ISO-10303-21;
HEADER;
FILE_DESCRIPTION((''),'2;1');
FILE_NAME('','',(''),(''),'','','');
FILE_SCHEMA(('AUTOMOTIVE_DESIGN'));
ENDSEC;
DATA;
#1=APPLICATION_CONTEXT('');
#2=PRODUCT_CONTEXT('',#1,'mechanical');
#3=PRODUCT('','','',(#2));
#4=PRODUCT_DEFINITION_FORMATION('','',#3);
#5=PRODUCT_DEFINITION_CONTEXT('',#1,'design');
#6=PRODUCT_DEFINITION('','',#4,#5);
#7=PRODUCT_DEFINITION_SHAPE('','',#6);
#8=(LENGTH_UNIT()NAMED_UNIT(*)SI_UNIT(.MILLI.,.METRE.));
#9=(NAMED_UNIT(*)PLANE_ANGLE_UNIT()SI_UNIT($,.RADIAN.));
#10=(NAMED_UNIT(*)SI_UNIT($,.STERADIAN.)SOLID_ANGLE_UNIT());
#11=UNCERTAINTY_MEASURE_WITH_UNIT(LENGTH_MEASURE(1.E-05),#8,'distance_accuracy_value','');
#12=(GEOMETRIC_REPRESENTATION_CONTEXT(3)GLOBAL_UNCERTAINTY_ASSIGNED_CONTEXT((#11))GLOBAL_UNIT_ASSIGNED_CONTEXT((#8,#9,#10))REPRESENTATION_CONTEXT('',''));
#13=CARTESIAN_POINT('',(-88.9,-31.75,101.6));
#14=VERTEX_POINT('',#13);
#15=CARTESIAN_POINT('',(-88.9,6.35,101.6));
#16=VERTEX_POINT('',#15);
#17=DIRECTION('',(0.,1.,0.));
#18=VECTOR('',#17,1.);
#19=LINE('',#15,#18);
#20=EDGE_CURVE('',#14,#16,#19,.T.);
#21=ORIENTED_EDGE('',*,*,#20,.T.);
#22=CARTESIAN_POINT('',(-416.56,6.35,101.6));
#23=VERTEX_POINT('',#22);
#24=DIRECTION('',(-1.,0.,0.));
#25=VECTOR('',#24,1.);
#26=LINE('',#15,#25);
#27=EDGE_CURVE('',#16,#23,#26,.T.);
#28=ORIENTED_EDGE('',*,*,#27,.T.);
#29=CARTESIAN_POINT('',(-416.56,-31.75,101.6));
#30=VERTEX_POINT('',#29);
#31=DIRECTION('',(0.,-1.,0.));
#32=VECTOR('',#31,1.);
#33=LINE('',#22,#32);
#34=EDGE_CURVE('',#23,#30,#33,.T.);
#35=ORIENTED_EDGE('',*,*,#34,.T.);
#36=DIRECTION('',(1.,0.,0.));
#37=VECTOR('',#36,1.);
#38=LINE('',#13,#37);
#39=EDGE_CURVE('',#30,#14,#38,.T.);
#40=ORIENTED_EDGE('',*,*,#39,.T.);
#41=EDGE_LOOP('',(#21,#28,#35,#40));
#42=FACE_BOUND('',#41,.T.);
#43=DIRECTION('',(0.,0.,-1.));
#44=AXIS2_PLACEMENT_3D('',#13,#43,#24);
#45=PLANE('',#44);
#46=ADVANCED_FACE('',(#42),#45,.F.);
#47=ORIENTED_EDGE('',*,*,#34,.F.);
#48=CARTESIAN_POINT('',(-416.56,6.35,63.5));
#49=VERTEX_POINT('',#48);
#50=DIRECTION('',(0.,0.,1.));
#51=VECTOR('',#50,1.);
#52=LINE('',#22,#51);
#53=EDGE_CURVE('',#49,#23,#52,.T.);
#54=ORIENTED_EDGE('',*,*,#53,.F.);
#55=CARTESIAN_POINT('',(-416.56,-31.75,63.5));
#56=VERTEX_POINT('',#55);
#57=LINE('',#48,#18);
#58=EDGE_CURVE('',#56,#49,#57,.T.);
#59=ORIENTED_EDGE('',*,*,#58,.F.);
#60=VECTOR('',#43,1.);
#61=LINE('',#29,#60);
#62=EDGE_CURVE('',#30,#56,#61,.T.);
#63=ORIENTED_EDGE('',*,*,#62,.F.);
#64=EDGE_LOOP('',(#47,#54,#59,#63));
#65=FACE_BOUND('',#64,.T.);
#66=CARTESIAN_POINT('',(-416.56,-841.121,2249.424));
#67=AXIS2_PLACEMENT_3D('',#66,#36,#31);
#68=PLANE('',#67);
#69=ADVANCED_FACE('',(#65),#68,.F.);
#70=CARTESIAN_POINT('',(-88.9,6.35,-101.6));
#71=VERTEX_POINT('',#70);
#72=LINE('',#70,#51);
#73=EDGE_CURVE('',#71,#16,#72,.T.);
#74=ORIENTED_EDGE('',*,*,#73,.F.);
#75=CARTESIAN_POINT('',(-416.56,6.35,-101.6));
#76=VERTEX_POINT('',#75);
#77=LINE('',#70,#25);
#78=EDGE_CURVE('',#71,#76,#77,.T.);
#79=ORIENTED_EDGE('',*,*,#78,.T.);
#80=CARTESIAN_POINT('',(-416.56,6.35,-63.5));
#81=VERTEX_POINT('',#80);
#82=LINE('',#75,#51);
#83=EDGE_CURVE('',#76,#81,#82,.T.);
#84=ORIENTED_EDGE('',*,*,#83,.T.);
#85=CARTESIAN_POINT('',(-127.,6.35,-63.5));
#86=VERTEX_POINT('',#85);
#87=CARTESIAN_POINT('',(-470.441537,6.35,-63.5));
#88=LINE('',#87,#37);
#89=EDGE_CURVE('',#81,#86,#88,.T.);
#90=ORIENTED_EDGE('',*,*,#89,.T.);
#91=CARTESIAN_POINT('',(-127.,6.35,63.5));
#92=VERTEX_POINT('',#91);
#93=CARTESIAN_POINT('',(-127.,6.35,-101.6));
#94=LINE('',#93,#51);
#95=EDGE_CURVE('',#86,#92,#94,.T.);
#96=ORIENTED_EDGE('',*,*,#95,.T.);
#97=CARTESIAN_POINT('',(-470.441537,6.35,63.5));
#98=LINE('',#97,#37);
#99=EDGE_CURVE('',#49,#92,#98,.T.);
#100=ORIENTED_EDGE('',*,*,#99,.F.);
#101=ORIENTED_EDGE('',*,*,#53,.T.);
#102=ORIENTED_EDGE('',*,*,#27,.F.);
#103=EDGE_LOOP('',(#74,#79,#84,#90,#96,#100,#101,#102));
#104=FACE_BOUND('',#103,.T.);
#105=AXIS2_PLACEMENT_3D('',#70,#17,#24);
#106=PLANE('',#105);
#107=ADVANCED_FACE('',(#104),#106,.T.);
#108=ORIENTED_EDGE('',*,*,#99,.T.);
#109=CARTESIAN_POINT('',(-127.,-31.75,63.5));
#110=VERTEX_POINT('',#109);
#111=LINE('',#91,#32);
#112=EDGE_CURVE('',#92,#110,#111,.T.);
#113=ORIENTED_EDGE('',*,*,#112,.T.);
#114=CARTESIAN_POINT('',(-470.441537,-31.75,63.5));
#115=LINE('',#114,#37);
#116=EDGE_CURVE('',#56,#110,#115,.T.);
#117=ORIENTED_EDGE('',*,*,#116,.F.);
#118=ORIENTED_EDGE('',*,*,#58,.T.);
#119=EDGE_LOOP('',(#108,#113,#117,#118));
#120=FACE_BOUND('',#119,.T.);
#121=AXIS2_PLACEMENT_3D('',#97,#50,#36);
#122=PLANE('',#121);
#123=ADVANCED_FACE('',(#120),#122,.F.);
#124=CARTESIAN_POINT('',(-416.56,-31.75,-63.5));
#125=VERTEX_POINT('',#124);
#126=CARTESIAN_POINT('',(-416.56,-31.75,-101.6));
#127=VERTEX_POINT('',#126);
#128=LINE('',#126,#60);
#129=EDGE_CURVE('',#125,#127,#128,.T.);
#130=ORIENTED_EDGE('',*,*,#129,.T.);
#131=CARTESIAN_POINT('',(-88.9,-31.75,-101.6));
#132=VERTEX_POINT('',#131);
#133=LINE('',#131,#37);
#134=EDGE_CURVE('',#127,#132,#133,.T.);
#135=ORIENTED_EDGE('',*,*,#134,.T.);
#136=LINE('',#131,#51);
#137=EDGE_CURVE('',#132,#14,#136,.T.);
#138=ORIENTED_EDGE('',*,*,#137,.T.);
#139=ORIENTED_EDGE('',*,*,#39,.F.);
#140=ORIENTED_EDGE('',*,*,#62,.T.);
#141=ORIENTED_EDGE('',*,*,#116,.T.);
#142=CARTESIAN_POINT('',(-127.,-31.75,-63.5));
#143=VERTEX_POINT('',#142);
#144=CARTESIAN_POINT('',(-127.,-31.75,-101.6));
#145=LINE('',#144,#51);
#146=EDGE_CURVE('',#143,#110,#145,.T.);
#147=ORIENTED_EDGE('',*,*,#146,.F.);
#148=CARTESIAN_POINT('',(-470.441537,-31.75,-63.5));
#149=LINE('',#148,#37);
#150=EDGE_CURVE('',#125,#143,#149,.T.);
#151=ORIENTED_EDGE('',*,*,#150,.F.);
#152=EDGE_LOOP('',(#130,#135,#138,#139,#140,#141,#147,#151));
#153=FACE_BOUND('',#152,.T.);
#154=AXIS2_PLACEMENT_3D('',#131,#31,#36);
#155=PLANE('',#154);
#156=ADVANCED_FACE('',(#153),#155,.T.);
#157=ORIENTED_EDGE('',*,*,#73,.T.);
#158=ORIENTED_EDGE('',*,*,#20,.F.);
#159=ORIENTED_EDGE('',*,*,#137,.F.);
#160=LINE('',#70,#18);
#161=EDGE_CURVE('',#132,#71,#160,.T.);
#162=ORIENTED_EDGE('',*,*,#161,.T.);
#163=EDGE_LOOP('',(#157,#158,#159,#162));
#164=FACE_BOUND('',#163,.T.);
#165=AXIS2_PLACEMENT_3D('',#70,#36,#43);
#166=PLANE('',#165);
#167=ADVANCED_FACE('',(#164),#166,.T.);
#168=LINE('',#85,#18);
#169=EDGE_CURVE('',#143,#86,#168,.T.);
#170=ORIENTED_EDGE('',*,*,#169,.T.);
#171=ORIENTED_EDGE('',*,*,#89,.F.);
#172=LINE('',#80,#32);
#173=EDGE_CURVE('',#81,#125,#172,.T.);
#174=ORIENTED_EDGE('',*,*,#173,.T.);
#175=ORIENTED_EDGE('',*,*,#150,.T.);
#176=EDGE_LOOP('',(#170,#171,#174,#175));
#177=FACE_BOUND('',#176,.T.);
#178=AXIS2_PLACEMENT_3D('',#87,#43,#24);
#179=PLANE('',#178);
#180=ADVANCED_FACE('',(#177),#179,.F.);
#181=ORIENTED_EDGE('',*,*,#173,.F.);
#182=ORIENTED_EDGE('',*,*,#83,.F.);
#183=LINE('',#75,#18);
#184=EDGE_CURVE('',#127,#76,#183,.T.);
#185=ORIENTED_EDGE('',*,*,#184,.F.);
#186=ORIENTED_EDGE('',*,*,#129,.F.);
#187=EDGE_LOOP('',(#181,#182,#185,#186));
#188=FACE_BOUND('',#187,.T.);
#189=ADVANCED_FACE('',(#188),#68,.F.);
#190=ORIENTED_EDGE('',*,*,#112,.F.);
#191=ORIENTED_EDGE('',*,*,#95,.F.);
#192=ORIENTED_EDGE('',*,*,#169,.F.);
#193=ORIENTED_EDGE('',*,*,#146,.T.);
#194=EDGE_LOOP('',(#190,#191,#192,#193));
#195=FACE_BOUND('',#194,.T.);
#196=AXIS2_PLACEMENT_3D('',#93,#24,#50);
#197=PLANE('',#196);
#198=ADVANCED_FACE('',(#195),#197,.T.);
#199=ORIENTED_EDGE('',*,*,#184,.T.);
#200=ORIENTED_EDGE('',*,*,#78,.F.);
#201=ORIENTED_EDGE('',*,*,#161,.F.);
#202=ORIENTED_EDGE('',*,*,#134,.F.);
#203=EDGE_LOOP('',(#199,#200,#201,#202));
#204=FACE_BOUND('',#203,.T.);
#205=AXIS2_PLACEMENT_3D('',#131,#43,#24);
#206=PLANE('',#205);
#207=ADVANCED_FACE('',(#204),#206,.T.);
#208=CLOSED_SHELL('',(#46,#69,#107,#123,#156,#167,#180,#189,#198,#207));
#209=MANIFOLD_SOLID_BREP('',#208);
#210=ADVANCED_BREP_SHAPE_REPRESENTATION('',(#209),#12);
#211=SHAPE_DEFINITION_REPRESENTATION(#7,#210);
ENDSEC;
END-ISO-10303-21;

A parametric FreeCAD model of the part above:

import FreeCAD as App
import Part
import Sketcher
from FreeCAD import Vector
Q = App.Units.Quantity


def add_polygon(sketch, points):
    """Adds a closed chain of lines whose ends are joined by coincident constraints."""
    first, n = sketch.GeometryCount, len(points)
    for a, b in zip(points, points[1:] + points[:1]):
        sketch.addGeometry(Part.LineSegment(App.Vector(*a, 0), App.Vector(*b, 0)), False)
    for i in range(n):
        sketch.addConstraint(Sketcher.Constraint("Coincident", first + i, 2, first + (i + 1) % n, 1))

doc = App.newDocument("Part")
body = doc.addObject("PartDesign::Body", "Body")

# Sketch on XY plane
sketch1 = body.newObject("Sketcher::SketchObject", "Sketch")
sketch1.AttachmentSupport = (doc.getObject("XY_Plane"), [""])
sketch1.MapMode = "FlatFace"
add_polygon(sketch1, [(-127, 6.35), (-127, -31.75), (-88.9, -31.75), (-88.9, 6.35)])  # lines 0-3
sketch1.addConstraint([
    Sketcher.Constraint("Vertical", 0),
    Sketcher.Constraint("Horizontal", 1),
    Sketcher.Constraint("Vertical", 2),
    Sketcher.Constraint("Horizontal", 3),
    Sketcher.Constraint("Equal", 3, 0),
    Sketcher.Constraint("DistanceX", 1, 1, 1, 2, Q("1.5 in")),
    Sketcher.Constraint("DistanceX", 0, 2, -1, 1, Q("5 in")),
    Sketcher.Constraint("DistanceY", 0, 2, -1, 1, Q("1.25 in")),
])
pad1 = body.newObject("PartDesign::Pad", "Pad")
pad1.Profile = sketch1
pad1.Type = "TwoLengths"
pad1.Length = Q("4 in")
pad1.Length2 = Q("4 in")

# Sketch on YZ plane
sketch2 = body.newObject("Sketcher::SketchObject", "Sketch001")
sketch2.AttachmentSupport = (doc.getObject("YZ_Plane"), [""])
sketch2.MapMode = "FlatFace"
sketch2.AttachmentOffset = App.Placement(Vector(0, 0, -5 * 25.4), App.Rotation())
add_polygon(sketch2, [(6.35, 63.5), (-31.75, 63.5), (-31.75, 101.6), (6.35, 101.6)])  # lines 0-3
add_polygon(sketch2, [(6.35, -101.6), (-31.75, -101.6), (-31.75, -63.5), (6.35, -63.5)])  # lines 4-7
sketch2.addConstraint([
    Sketcher.Constraint("Horizontal", 0),
    Sketcher.Constraint("Vertical", 1),
    Sketcher.Constraint("Horizontal", 2),
    Sketcher.Constraint("Vertical", 3),
    Sketcher.Constraint("Horizontal", 4),
    Sketcher.Constraint("Vertical", 5),
    Sketcher.Constraint("Horizontal", 6),
    Sketcher.Constraint("Vertical", 7),
    Sketcher.Constraint("Symmetric", 1, 2, 4, 2, -1),
    Sketcher.Constraint("Symmetric", 3, 2, 6, 2, -1),
    Sketcher.Constraint("Equal", 6, 1),
    Sketcher.Constraint("DistanceX", 0, 2, 0, 1, Q("1.5 in")),
    Sketcher.Constraint("DistanceY", -1, 1, 1, 2, Q("4 in")),
    Sketcher.Constraint("DistanceX", 0, 2, -1, 1, Q("1.25 in")),
])
pad2 = body.newObject("PartDesign::Pad", "Pad001")
pad2.Profile = sketch2
pad2.Length = Q("11.4 in")
pad2.Reversed = True

doc.recompute()
